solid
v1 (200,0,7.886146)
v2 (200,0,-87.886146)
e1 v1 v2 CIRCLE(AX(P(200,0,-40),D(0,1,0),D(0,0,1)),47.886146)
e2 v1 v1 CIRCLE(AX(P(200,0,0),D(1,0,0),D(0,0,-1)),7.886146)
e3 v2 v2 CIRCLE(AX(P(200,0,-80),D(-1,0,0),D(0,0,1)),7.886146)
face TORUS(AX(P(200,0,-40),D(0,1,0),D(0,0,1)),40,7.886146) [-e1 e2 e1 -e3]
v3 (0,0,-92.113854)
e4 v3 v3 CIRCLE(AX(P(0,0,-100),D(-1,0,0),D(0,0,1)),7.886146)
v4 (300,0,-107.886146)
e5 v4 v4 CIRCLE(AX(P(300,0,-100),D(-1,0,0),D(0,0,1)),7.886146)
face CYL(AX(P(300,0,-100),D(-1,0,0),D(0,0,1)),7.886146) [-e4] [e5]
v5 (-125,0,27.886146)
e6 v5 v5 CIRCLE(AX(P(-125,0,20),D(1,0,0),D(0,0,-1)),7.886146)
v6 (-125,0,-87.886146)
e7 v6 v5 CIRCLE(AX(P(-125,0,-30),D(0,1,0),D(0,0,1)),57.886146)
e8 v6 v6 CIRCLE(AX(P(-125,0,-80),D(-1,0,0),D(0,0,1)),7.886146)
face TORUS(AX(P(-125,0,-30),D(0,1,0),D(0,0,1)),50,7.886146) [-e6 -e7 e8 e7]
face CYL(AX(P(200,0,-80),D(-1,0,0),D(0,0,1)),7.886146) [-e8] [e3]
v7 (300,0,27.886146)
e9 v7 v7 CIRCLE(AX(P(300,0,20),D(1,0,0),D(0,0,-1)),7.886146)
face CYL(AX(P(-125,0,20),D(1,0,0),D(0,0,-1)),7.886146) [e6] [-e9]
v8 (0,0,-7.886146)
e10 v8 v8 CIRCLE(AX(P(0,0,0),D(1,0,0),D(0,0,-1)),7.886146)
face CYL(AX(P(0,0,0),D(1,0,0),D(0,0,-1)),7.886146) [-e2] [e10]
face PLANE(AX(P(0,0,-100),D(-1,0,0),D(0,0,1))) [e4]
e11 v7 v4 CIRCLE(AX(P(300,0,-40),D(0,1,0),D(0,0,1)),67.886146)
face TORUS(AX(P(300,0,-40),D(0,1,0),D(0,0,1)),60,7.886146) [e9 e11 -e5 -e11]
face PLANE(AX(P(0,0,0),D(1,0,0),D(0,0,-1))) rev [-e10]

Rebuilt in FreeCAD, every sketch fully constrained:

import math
import FreeCAD as App
import Part
import Sketcher

V = App.Vector
Q = App.Units.Quantity

doc = App.newDocument("Part")
params = doc.addObject("Spreadsheet::Sheet", "Params")
for row, (alias, value) in enumerate([
    ("sketch2_radius", "40 mm"),
    ("sketch2_radius2", "50 mm"),
    ("sketch2_width", "200 mm"),
    ("sketch2_width2", "325 mm"),
    ("sketch2_width3", "425 mm"),
], start=1):
    params.set(f"A{row}", alias)
    params.set(f"B{row}", "=" + value)
    params.setAlias(f"B{row}", alias)

body = doc.addObject("PartDesign::Body", "Body")

# Sketch on YZ plane
sketch1 = body.newObject("Sketcher::SketchObject", "Sketch")
sketch1.AttachmentSupport = (doc.getObject("YZ_Plane"), [""])
sketch1.MapMode = "FlatFace"
sketch1.addGeometry(Part.Circle(V(0, 0, 0), V(0, 0, 1), 8), False)
sketch1.addConstraint([
    Sketcher.Constraint("Coincident", 0, 3, -1, 1),
    Sketcher.Constraint("Diameter", 0, Q("15.772293 mm")),
])

# Sketch on XZ plane
sketch2 = body.newObject("Sketcher::SketchObject", "Sketch001")
sketch2.AttachmentSupport = (doc.getObject("XZ_Plane"), [""])
sketch2.MapMode = "FlatFace"
sketch2.addGeometry([
    Part.LineSegment(V(0, 0, 0), V(200, 0, 0)),  # 0
    Part.ArcOfCircle(Part.Circle(V(200, -40, 0), V(0, 0, 1), 40), math.radians(-90), math.radians(90)),  # 1
    Part.LineSegment(V(200, -80, 0), V(-125, -80, 0)),  # 2
    Part.ArcOfCircle(Part.Circle(V(-125, -30, 0), V(0, 0, 1), 50), math.radians(90), math.radians(270)),  # 3
    Part.LineSegment(V(-125, 20, 0), V(300, 20, 0)),  # 4
    Part.ArcOfCircle(Part.Circle(V(300, -40, 0), V(0, 0, 1), 60), math.radians(-90), math.radians(90)),  # 5
    Part.LineSegment(V(300, -100, 0), V(0, -100, 0)),  # 6
], False)
sketch2.addConstraint([
    Sketcher.Constraint("Tangent", 0, 2, 1, 2),
    Sketcher.Constraint("Tangent", 1, 1, 2, 1),
    Sketcher.Constraint("Tangent", 2, 2, 3, 2),
    Sketcher.Constraint("Tangent", 3, 1, 4, 1),
    Sketcher.Constraint("Tangent", 4, 2, 5, 2),
    Sketcher.Constraint("Tangent", 5, 1, 6, 1),
    Sketcher.Constraint("Horizontal", 0),
    Sketcher.Constraint("Horizontal", 2),
    Sketcher.Constraint("Horizontal", 4),
    Sketcher.Constraint("Horizontal", 6),
    Sketcher.Constraint("Coincident", 0, 1, -1, 1),
    Sketcher.Constraint("PointOnObject", 6, 2, -2),
    Sketcher.Constraint("Horizontal", 1, 3, 5, 3),
    Sketcher.Constraint("Radius", 1, Q("40 mm")),
    Sketcher.Constraint("Radius", 3, Q("50 mm")),
    Sketcher.Constraint("DistanceX", 0, 1, 0, 2, Q("200 mm")),
    Sketcher.Constraint("DistanceX", 2, 2, 2, 1, Q("325 mm")),
    Sketcher.Constraint("DistanceX", 4, 1, 4, 2, Q("425 mm")),
])
sketch2.setExpression("Constraints[13]", "Params.sketch2_radius")
sketch2.setExpression("Constraints[14]", "Params.sketch2_radius2")
sketch2.setExpression("Constraints[15]", "Params.sketch2_width")
sketch2.setExpression("Constraints[16]", "Params.sketch2_width2")
sketch2.setExpression("Constraints[17]", "Params.sketch2_width3")
doc.recompute()

additivepipe = body.newObject("PartDesign::AdditivePipe", "AdditivePipe")
additivepipe.Profile = sketch1
additivepipe.Spine = (sketch2, ["Edge1", "Edge2", "Edge3", "Edge4", "Edge5", "Edge6", "Edge7"])

doc.recompute()
